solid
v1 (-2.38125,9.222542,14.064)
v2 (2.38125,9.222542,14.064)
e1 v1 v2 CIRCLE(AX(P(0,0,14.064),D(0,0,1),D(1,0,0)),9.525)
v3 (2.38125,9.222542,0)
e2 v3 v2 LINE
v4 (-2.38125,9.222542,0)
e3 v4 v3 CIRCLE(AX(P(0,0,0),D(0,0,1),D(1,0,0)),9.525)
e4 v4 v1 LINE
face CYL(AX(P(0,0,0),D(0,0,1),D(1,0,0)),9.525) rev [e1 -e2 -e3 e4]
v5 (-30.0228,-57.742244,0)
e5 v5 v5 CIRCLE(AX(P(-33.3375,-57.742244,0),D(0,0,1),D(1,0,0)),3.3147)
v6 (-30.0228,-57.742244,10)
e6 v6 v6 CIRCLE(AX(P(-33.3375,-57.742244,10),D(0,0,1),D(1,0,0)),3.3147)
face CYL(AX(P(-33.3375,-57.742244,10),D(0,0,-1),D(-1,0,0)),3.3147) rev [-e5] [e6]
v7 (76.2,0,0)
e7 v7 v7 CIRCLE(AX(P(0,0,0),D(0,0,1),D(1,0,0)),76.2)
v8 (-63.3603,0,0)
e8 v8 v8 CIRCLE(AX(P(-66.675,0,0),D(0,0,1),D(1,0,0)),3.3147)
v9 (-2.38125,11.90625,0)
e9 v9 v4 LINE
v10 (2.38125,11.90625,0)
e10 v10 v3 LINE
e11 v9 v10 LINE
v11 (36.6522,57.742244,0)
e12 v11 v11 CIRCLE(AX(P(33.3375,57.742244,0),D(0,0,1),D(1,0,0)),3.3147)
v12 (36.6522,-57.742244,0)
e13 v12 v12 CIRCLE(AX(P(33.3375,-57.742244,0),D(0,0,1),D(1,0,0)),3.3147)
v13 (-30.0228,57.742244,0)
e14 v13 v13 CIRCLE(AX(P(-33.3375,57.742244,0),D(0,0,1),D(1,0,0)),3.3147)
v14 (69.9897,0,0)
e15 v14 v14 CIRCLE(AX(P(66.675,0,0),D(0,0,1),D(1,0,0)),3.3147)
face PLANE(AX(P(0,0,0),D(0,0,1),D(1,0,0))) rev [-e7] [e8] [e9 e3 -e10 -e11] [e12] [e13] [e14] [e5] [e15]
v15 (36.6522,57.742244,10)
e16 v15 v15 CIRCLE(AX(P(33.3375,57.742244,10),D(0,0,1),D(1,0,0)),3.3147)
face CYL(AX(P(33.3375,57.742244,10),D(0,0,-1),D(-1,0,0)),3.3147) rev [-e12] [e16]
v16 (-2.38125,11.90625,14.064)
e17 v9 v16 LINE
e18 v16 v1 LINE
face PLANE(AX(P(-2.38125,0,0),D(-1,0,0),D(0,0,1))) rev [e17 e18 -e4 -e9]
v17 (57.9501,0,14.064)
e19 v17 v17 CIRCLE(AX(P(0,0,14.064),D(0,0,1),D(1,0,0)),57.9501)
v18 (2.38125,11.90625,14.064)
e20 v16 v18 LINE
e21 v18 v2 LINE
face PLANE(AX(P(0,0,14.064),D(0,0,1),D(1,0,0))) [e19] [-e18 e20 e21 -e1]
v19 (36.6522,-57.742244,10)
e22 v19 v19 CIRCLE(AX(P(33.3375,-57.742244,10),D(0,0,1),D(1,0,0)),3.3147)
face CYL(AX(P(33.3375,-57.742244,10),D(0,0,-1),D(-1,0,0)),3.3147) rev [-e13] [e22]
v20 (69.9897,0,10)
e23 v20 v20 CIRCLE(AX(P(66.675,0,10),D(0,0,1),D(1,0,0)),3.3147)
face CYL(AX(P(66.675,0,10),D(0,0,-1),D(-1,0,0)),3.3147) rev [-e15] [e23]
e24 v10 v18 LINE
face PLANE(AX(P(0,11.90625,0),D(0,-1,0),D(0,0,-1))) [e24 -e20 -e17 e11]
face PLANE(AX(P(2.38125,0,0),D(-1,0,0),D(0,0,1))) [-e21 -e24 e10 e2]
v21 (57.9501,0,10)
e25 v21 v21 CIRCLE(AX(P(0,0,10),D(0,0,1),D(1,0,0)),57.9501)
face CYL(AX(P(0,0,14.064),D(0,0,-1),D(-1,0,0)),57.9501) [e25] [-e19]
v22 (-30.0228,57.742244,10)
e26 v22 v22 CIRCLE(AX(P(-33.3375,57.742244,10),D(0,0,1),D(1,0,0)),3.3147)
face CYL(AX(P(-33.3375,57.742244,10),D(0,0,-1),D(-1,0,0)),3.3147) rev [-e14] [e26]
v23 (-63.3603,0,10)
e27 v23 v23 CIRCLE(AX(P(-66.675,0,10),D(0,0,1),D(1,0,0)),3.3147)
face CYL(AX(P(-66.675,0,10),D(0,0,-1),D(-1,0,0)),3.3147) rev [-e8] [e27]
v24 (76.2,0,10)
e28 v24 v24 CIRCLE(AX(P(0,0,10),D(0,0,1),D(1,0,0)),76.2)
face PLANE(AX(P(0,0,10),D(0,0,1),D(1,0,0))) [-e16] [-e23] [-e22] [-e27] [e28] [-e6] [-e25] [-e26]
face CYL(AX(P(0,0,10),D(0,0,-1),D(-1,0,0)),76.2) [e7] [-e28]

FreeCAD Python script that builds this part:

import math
import FreeCAD as App
import Part
import Sketcher

V = App.Vector
Q = App.Units.Quantity

doc = App.newDocument("Part")
params = doc.addObject("Spreadsheet::Sheet", "Params")
for row, (alias, value) in enumerate([
    ("sketch1_diameter", "6 in"),
    ("pad1_length", "10 mm"),
    ("sketch2_diameter", "0.261 in"),
    ("sketch3_diameter", "4.563 in"),
    ("pad2_length", "0.16 in"),
    ("sketch4_radius", "0.375 in"),
    ("sketch4_width", "0.1875 in"),
], start=1):
    params.set(f"A{row}", alias)
    params.set(f"B{row}", "=" + value)
    params.setAlias(f"B{row}", alias)

body = doc.addObject("PartDesign::Body", "Body")

# Sketch on XY plane
sketch1 = doc.addObject("Sketcher::SketchObject", "Sketch")
body.addObject(sketch1)
sketch1.AttachmentSupport = (doc.XY_Plane, [""])
sketch1.MapMode = "FlatFace"
sketch1.addGeometry(Part.Circle(V(0, 0, 0), V(0, 0, 1), 76), False)
sketch1.addConstraint(Sketcher.Constraint("Coincident", 0, 3, -1, 1))
sketch1.addConstraint(Sketcher.Constraint("Diameter", 0, Q("6 in")))
sketch1.setExpression("Constraints[1]", "Params.sketch1_diameter")
pad1 = doc.addObject("PartDesign::Pad", "Pad")
body.addObject(pad1)
pad1.Profile = sketch1
pad1.setExpression("Length", "Params.pad1_length")

# Sketch on XY plane
sketch2 = doc.addObject("Sketcher::SketchObject", "Sketch001")
body.addObject(sketch2)
sketch2.AttachmentSupport = (doc.XY_Plane, [""])
sketch2.MapMode = "FlatFace"
sketch2.addGeometry(Part.Circle(V(66.7, 0, 0), V(0, 0, 1), 3.3), False)
sketch2.addGeometry(Part.Circle(V(33.3, -57.7, 0), V(0, 0, 1), 3.3), False)
sketch2.addGeometry(Part.Circle(V(-33.3, -57.7, 0), V(0, 0, 1), 3.3), False)
sketch2.addGeometry(Part.Circle(V(-66.7, 0, 0), V(0, 0, 1), 3.3), False)
sketch2.addGeometry(Part.Circle(V(-33.3, 57.7, 0), V(0, 0, 1), 3.3), False)
sketch2.addGeometry(Part.Circle(V(33.3, 57.7, 0), V(0, 0, 1), 3.3), False)
sketch2.addConstraint(Sketcher.Constraint("Equal", 0, 1))
sketch2.addConstraint(Sketcher.Constraint("Equal", 1, 2))
sketch2.addConstraint(Sketcher.Constraint("Equal", 2, 3))
sketch2.addConstraint(Sketcher.Constraint("Equal", 3, 4))
sketch2.addConstraint(Sketcher.Constraint("Equal", 4, 5))
sketch2.addConstraint(Sketcher.Constraint("Symmetric", 0, 3, 3, 3, -1, 1))
sketch2.addConstraint(Sketcher.Constraint("Symmetric", 1, 3, 4, 3, -1, 1))
sketch2.addConstraint(Sketcher.Constraint("Symmetric", 2, 3, 5, 3, -1, 1))
sketch2.addConstraint(Sketcher.Constraint("Symmetric", 1, 3, 2, 3, -2))
sketch2.addConstraint(Sketcher.Constraint("PointOnObject", 0, 3, -1))
sketch2.addConstraint(Sketcher.Constraint("Diameter", 0, Q("0.261 in")))
sketch2.addConstraint(Sketcher.Constraint("DistanceX", 3, 3, 0, 3, Q("5.25 in")))
sketch2.addConstraint(Sketcher.Constraint("DistanceX", -1, 1, 1, 3, Q("1.3125 in")))
sketch2.addConstraint(Sketcher.Constraint("DistanceY", 1, 3, -1, 1, 57.742244))
sketch2.setExpression("Constraints[10]", "Params.sketch2_diameter")
pocket1 = doc.addObject("PartDesign::Pocket", "Pocket")
body.addObject(pocket1)
pocket1.Profile = sketch2
pocket1.Type = "ThroughAll"
pocket1.Reversed = True

# Sketch on XY plane
sketch3 = doc.addObject("Sketcher::SketchObject", "Sketch002")
body.addObject(sketch3)
sketch3.AttachmentSupport = (doc.XY_Plane, [""])
sketch3.MapMode = "FlatFace"
sketch3.AttachmentOffset = App.Placement(V(0, 0, 10), App.Rotation())
sketch3.addGeometry(Part.Circle(V(0, 0, 0), V(0, 0, 1), 58), False)
sketch3.addConstraint(Sketcher.Constraint("Coincident", 0, 3, -1, 1))
sketch3.addConstraint(Sketcher.Constraint("Diameter", 0, Q("4.563 in")))
sketch3.setExpression("Constraints[1]", "Params.sketch3_diameter")
pad2 = doc.addObject("PartDesign::Pad", "Pad001")
body.addObject(pad2)
pad2.Profile = sketch3
pad2.setExpression("Length", "Params.pad2_length")

# Sketch on XY plane
sketch4 = doc.addObject("Sketcher::SketchObject", "Sketch003")
body.addObject(sketch4)
sketch4.AttachmentSupport = (doc.XY_Plane, [""])
sketch4.MapMode = "FlatFace"
sketch4.AttachmentOffset = App.Placement(V(0, 0, 14.064), App.Rotation())
sketch4.addGeometry(Part.ArcOfCircle(Part.Circle(V(0, 0, 0), V(0, 0, 1), 9.5), math.radians(104), math.radians(436)), False)
sketch4.addGeometry(Part.LineSegment(V(2.4, 9.2, 0), V(2.4, 11.9, 0)), False)
sketch4.addGeometry(Part.LineSegment(V(2.4, 11.9, 0), V(-2.4, 11.9, 0)), False)
sketch4.addGeometry(Part.LineSegment(V(-2.4, 11.9, 0), V(-2.4, 9.2, 0)), False)
sketch4.addConstraint(Sketcher.Constraint("Coincident", 0, 2, 1, 1))
sketch4.addConstraint(Sketcher.Constraint("Coincident", 1, 2, 2, 1))
sketch4.addConstraint(Sketcher.Constraint("Coincident", 2, 2, 3, 1))
sketch4.addConstraint(Sketcher.Constraint("Coincident", 3, 2, 0, 1))
sketch4.addConstraint(Sketcher.Constraint("Vertical", 1))
sketch4.addConstraint(Sketcher.Constraint("Horizontal", 2))
sketch4.addConstraint(Sketcher.Constraint("Vertical", 3))
sketch4.addConstraint(Sketcher.Constraint("Coincident", 0, 3, -1, 1))
sketch4.addConstraint(Sketcher.Constraint("Horizontal", 0, 2, 3, 2))
sketch4.addConstraint(Sketcher.Constraint("Radius", 0, Q("0.375 in")))
sketch4.addConstraint(Sketcher.Constraint("DistanceX", 2, 2, 2, 1, Q("0.1875 in")))
sketch4.addConstraint(Sketcher.Constraint("DistanceY", -1, 1, 1, 2, Q("0.46875 in")))
sketch4.setExpression("Constraints[9]", "Params.sketch4_radius")
sketch4.setExpression("Constraints[10]", "Params.sketch4_width")
pocket2 = doc.addObject("PartDesign::Pocket", "Pocket001")
body.addObject(pocket2)
pocket2.Profile = sketch4
pocket2.Type = "ThroughAll"

doc.recompute()
